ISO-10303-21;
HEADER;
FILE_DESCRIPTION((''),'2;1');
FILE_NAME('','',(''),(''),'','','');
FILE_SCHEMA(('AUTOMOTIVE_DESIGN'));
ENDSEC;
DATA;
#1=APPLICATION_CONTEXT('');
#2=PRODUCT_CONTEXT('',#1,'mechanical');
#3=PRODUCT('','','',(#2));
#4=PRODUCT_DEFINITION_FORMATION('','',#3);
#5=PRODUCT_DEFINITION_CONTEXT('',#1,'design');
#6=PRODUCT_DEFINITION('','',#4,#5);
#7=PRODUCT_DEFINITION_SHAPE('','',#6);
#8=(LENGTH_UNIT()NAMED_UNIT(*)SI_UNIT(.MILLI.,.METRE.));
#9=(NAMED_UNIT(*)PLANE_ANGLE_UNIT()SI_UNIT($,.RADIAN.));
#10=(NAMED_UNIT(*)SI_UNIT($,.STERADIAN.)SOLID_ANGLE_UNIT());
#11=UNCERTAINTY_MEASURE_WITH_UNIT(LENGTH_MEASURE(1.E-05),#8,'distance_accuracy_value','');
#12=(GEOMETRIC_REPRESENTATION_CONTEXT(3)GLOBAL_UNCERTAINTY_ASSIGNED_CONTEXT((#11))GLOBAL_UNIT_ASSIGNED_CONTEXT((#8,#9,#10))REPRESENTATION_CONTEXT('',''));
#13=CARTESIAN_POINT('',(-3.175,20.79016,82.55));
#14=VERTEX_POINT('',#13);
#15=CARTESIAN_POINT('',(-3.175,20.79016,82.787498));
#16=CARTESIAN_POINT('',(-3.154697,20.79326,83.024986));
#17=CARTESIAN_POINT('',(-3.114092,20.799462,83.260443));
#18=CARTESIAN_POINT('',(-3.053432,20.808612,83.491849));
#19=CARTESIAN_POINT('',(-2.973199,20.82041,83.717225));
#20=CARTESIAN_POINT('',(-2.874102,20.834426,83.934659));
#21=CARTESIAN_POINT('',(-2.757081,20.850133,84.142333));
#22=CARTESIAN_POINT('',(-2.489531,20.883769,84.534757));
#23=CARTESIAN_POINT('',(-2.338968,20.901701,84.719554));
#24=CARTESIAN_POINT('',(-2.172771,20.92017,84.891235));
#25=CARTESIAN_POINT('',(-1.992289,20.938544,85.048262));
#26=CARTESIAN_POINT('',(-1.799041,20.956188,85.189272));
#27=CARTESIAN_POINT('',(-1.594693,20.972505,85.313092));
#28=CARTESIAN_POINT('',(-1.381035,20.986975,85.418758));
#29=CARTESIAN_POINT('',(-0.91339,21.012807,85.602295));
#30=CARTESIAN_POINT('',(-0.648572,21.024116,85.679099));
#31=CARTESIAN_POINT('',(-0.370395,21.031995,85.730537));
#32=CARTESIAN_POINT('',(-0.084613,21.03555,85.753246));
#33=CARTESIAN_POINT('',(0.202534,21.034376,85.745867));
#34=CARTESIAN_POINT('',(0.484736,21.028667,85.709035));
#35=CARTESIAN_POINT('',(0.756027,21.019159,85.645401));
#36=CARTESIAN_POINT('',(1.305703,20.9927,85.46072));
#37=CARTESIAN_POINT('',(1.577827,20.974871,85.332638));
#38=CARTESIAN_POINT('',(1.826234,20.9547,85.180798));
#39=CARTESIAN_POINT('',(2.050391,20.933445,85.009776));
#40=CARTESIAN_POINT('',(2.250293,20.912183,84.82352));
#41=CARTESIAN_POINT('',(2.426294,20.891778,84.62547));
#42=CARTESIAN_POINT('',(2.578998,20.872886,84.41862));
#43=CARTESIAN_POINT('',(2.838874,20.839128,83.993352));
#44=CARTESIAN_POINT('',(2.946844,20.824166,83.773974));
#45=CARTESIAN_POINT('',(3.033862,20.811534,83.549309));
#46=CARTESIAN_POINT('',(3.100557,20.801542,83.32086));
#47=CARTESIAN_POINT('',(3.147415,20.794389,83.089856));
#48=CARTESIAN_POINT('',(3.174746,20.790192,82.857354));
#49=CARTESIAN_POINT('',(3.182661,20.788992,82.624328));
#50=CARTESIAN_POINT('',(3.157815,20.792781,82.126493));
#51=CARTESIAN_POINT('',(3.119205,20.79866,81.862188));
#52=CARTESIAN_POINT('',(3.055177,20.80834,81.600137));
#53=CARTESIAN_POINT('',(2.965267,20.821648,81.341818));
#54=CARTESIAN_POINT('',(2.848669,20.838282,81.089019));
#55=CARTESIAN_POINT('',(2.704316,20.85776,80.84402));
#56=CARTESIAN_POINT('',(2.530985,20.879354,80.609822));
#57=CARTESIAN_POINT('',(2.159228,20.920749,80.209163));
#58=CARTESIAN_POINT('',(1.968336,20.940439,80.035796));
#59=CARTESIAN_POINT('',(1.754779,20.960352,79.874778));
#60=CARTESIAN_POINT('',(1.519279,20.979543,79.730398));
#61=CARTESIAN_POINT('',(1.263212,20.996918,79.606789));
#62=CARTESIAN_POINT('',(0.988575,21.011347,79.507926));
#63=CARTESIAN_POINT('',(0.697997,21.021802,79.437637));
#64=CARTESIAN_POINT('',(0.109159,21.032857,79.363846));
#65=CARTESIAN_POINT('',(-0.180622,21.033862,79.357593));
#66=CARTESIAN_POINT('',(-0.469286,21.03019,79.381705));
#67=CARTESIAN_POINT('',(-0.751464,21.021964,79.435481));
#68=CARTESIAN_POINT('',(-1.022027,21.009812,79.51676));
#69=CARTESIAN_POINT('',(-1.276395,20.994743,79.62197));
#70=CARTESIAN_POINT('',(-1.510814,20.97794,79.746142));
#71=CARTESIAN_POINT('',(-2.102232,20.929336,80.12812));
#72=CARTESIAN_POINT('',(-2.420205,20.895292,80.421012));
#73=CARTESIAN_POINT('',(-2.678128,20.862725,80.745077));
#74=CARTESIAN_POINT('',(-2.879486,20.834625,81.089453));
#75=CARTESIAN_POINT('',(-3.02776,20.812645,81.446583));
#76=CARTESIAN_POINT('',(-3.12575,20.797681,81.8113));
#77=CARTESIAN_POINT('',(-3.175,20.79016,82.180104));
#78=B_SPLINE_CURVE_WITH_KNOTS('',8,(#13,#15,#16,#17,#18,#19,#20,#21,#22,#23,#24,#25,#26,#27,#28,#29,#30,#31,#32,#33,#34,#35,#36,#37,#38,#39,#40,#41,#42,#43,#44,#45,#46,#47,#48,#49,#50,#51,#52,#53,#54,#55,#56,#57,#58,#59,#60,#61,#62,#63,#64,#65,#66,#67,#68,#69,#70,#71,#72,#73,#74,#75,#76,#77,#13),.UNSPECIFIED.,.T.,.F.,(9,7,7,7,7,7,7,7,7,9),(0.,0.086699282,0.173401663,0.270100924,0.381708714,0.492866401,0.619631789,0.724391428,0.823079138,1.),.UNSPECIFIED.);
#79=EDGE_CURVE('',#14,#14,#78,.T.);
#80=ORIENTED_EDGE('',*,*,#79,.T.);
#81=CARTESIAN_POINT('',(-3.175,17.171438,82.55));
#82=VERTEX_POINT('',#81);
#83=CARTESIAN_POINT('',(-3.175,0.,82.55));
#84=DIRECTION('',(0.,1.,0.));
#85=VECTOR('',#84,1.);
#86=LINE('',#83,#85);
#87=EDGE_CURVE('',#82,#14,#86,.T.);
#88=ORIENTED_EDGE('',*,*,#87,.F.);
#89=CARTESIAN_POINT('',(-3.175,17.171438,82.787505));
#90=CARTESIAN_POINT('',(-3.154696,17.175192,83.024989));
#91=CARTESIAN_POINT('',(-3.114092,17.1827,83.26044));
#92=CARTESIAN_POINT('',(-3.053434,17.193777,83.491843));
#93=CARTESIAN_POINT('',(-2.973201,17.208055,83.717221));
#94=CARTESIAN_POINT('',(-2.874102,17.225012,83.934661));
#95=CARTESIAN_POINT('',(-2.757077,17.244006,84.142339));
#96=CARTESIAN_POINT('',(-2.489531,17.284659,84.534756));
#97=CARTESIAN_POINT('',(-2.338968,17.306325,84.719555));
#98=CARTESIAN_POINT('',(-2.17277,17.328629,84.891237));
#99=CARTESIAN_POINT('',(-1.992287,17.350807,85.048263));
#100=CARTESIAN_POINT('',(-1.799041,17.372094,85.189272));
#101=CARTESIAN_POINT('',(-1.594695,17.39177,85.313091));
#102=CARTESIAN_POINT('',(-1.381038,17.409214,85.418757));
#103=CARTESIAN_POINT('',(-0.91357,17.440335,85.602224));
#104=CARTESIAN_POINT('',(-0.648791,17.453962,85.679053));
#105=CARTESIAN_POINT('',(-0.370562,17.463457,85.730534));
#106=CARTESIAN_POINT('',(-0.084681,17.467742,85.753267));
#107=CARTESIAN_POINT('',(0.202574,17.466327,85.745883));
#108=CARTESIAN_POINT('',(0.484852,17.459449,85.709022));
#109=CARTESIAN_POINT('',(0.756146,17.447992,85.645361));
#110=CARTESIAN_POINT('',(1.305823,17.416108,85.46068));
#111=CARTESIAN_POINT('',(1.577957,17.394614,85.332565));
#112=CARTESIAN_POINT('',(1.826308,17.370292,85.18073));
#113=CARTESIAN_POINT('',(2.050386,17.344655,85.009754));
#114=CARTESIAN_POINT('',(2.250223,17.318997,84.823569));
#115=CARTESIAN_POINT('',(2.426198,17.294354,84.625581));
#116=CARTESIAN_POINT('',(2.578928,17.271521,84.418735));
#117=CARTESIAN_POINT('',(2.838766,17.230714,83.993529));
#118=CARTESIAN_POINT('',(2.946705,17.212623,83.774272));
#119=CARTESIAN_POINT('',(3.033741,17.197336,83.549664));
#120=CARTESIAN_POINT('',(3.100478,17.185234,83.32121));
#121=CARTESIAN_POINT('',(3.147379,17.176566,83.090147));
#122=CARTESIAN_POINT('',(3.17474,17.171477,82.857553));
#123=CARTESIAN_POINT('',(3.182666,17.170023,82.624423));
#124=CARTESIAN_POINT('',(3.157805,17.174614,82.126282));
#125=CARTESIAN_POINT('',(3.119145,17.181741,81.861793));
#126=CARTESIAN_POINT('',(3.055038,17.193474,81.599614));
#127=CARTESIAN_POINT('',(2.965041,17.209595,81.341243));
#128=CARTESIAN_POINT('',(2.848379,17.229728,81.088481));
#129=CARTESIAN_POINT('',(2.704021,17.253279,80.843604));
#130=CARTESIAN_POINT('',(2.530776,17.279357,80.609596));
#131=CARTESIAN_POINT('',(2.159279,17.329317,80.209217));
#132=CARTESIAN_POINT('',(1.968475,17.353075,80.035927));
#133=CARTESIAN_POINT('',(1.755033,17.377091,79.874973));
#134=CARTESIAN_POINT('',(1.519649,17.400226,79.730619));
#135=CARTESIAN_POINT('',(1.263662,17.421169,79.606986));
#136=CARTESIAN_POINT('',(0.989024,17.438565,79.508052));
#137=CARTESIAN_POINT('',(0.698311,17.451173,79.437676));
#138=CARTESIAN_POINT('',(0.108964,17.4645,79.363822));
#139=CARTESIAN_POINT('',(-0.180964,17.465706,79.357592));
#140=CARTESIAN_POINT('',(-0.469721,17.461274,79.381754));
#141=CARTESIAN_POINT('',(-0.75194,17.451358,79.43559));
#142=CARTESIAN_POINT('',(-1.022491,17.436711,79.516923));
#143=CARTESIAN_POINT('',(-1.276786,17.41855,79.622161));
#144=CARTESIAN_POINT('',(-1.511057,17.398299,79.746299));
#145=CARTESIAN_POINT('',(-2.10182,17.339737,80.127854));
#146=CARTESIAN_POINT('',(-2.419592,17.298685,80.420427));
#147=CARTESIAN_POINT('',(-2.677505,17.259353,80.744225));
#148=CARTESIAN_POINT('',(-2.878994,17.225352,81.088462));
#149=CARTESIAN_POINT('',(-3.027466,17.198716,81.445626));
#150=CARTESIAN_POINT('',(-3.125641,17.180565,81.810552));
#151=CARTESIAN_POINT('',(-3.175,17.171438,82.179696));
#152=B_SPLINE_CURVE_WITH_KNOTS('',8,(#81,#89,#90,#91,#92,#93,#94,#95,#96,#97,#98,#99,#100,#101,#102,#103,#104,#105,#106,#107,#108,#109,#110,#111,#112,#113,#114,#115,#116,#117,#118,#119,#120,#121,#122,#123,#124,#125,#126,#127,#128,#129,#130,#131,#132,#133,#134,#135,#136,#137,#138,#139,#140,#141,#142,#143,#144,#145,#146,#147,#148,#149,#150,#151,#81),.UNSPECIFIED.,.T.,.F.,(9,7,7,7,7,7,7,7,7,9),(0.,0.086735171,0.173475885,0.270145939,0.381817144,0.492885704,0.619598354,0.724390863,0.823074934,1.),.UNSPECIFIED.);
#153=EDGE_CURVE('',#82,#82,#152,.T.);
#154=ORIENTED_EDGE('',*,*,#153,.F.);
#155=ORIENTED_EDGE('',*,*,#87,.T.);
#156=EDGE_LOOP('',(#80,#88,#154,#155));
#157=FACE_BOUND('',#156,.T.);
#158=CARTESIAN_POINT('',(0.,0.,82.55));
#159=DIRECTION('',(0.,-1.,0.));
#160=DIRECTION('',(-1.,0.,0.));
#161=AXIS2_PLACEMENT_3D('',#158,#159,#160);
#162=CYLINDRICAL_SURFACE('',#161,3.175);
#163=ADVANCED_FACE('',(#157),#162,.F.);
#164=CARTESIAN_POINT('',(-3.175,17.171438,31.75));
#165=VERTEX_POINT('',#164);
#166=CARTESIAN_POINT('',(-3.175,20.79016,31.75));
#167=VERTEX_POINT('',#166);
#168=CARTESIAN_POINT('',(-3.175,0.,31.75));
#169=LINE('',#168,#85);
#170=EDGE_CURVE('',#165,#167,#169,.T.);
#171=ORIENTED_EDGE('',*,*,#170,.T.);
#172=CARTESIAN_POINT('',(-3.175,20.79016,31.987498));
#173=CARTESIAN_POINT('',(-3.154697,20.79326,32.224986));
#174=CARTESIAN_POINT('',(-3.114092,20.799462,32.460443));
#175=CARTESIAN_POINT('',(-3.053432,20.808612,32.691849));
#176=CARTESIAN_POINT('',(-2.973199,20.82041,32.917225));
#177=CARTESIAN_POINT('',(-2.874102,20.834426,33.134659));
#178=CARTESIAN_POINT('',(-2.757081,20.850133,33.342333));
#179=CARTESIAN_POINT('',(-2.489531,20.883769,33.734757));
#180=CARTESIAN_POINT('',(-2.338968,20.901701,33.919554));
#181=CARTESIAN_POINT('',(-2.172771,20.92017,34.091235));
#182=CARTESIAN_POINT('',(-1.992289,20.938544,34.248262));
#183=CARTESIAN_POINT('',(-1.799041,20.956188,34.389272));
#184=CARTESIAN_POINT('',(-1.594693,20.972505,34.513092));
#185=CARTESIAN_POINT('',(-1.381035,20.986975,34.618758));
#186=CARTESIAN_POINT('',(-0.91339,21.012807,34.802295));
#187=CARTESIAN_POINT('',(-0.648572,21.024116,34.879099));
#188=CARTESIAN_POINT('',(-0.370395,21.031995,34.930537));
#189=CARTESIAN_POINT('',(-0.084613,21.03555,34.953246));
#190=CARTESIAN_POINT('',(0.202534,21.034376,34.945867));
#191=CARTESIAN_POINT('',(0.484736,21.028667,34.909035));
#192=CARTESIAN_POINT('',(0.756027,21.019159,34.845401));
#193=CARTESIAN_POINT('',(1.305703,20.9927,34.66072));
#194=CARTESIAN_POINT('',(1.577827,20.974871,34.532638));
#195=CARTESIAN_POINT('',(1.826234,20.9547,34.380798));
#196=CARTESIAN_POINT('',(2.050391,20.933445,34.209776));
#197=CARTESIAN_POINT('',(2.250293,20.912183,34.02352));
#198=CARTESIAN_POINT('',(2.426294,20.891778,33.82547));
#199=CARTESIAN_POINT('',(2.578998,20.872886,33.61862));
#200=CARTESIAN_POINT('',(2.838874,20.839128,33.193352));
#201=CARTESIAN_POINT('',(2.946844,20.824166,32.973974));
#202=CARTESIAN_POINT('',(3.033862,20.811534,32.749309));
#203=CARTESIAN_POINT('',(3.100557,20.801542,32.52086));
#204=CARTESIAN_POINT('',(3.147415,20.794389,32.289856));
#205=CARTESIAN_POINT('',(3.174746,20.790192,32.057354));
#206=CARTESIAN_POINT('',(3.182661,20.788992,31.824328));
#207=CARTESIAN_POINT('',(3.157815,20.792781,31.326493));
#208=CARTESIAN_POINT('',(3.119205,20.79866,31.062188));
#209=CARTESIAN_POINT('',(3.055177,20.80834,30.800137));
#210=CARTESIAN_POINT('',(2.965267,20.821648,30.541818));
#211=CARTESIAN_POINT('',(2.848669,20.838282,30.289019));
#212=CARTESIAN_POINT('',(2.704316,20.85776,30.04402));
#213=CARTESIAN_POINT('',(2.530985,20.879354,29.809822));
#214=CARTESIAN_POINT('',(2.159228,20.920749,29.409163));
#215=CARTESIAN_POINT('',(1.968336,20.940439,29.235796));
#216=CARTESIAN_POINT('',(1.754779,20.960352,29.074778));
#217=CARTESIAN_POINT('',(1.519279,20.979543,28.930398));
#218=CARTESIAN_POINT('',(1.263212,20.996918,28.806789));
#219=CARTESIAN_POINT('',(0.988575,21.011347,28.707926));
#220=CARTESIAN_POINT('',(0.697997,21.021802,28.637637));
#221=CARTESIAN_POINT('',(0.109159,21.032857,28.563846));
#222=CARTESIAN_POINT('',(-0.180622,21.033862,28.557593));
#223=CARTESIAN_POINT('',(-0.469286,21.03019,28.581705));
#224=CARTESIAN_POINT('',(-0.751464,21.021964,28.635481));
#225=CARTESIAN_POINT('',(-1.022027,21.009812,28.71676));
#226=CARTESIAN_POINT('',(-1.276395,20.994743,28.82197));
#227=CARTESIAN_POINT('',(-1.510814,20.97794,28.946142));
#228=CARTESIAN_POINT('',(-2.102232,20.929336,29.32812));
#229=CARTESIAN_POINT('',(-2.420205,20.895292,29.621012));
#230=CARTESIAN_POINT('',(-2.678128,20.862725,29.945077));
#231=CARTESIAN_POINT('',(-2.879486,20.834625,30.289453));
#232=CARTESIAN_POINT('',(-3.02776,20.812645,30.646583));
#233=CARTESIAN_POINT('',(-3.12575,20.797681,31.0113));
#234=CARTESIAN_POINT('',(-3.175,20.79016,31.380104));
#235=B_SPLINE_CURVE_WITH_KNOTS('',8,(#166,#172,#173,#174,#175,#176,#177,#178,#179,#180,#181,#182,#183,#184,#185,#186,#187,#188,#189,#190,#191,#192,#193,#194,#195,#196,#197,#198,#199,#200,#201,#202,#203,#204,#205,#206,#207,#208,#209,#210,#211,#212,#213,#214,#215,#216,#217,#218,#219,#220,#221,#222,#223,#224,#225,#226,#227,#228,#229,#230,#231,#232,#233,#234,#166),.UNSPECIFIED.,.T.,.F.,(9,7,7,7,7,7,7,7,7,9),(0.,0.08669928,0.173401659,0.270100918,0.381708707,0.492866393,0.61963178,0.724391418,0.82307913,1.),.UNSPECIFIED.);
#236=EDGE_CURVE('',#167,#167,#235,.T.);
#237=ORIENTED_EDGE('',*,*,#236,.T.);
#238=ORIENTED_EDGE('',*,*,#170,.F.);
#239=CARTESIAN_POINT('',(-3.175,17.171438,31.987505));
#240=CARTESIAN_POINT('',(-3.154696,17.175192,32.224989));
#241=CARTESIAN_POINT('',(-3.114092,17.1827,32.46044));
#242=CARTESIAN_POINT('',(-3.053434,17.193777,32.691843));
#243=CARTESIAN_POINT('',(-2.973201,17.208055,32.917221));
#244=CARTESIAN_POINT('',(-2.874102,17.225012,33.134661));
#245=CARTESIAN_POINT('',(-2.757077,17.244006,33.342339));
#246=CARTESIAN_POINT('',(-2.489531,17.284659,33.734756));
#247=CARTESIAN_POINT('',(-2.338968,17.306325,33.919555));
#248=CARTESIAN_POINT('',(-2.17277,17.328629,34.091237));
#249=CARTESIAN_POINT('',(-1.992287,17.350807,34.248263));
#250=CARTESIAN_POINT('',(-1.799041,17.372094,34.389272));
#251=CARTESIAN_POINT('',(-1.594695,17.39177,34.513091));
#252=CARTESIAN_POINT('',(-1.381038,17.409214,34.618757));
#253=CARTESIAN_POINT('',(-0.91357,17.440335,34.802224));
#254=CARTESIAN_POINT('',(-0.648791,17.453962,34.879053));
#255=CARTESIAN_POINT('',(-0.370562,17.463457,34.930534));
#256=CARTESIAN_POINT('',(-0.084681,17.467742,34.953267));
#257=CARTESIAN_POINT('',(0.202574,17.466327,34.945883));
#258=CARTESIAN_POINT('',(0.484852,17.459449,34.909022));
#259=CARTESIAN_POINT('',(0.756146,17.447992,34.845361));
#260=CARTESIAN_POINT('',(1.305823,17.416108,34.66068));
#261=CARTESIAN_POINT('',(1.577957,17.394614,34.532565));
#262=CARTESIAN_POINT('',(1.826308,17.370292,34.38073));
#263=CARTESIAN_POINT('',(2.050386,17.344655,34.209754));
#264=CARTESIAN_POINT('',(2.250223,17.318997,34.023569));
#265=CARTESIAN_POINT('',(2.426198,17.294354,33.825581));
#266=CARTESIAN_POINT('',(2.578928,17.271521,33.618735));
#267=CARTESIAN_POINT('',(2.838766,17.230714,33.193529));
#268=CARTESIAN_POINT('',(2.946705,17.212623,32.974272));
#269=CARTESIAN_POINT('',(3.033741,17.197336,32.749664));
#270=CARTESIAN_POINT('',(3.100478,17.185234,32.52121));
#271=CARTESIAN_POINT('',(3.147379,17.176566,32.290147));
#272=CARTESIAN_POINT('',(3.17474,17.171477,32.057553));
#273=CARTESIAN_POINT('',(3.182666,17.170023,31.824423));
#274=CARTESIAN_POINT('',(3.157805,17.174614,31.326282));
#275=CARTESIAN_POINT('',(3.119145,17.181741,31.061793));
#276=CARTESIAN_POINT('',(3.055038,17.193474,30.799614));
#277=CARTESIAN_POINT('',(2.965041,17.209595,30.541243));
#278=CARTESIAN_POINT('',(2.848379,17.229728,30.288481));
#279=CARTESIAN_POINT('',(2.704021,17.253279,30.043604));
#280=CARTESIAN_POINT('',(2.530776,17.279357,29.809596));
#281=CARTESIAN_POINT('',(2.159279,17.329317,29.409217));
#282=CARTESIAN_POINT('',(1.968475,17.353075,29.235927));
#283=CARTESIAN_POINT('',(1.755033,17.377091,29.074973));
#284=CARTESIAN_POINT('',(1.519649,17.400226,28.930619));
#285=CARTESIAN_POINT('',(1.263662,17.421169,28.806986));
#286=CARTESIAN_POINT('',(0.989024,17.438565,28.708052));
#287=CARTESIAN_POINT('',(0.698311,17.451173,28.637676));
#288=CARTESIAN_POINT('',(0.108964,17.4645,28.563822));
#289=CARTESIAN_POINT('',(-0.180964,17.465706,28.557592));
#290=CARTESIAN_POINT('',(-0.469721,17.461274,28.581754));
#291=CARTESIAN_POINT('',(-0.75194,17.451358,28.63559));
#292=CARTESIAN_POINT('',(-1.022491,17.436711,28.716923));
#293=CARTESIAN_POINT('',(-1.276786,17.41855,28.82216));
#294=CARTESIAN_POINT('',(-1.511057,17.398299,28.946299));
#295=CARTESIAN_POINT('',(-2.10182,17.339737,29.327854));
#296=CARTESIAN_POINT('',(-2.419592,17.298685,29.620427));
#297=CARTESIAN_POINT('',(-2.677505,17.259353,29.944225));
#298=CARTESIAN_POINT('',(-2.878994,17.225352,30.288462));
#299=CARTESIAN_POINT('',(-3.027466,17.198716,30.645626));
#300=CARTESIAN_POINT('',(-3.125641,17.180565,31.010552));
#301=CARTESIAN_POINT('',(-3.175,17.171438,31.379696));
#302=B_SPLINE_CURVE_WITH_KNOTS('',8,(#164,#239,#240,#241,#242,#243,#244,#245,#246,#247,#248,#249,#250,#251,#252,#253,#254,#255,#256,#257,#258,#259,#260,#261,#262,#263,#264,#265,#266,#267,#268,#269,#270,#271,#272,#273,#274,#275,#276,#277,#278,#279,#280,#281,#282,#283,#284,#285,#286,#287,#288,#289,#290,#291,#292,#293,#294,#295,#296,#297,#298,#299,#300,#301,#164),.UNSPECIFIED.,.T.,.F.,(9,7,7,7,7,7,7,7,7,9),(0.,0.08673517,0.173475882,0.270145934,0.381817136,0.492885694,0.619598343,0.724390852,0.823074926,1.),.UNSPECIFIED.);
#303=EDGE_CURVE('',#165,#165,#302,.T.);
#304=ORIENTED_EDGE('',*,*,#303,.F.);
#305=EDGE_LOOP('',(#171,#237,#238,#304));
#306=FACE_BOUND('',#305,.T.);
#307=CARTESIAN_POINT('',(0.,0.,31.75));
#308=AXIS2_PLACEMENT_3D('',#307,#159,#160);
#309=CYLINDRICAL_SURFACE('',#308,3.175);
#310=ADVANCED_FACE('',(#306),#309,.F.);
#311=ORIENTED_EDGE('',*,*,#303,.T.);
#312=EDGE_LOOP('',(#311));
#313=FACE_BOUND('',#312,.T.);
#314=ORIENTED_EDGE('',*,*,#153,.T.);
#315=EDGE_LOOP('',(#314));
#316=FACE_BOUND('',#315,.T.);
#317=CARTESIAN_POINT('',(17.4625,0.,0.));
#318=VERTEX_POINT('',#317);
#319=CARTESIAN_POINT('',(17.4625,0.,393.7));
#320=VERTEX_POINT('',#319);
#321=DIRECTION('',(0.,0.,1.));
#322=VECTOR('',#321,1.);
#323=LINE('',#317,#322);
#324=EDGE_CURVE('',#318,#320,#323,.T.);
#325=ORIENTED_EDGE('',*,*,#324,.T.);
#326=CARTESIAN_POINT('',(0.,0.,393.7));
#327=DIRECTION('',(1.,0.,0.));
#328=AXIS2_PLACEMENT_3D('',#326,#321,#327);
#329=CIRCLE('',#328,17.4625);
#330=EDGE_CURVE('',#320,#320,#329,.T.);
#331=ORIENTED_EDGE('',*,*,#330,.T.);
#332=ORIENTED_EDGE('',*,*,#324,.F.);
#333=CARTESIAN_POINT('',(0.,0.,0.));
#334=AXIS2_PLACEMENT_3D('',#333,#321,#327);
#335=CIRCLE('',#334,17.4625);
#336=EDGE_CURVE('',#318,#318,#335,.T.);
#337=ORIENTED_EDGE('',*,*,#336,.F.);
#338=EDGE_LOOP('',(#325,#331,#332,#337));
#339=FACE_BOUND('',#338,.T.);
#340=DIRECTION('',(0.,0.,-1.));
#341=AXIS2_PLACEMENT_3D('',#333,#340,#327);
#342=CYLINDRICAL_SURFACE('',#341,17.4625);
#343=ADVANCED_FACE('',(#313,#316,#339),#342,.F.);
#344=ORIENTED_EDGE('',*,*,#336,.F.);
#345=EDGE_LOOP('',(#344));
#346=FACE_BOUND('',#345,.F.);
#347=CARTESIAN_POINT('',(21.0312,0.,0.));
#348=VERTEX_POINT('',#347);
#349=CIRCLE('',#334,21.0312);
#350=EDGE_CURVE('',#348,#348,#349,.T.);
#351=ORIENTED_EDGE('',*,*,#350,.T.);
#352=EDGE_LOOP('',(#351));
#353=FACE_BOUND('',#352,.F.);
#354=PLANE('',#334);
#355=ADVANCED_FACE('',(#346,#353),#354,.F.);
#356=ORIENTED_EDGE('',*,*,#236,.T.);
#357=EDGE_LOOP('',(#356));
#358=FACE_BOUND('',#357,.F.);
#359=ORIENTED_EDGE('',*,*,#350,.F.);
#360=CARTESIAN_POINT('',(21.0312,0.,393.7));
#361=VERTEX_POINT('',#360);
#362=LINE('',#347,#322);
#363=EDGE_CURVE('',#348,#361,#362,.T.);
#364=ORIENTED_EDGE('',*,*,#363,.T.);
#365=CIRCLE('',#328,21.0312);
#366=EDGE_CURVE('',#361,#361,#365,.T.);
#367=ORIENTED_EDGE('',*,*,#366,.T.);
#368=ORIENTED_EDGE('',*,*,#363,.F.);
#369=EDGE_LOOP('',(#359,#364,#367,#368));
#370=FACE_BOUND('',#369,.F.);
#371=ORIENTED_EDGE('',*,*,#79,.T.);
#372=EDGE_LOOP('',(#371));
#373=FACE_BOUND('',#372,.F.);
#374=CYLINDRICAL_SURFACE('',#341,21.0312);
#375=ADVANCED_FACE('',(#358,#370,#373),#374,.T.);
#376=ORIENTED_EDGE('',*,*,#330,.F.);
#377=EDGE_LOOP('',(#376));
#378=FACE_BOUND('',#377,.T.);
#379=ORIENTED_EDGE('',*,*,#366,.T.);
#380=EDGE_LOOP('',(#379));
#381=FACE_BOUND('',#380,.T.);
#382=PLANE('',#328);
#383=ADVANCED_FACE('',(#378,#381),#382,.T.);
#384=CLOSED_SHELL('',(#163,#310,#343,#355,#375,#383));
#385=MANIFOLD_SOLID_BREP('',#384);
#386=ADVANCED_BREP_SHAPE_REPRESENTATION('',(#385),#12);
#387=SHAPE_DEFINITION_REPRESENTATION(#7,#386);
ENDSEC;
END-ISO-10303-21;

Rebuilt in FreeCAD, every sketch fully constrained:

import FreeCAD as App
import Part
import Sketcher
from FreeCAD import Vector
Q = App.Units.Quantity

doc = App.newDocument("Part")
body = doc.addObject("PartDesign::Body", "Body")

# Sketch on XY plane
sketch1 = body.newObject("Sketcher::SketchObject", "Sketch")
sketch1.AttachmentSupport = (doc.getObject("XY_Plane"), [""])
sketch1.MapMode = "FlatFace"
sketch1.addGeometry(Part.Circle(Vector(0, 0, 0), Vector(0, 0, 1), 21), False)
sketch1.addGeometry(Part.Circle(Vector(0, 0, 0), Vector(0, 0, 1), 17), False)
sketch1.addConstraint(Sketcher.Constraint("Coincident", 0, 3, -1, 1))
sketch1.addConstraint(Sketcher.Constraint("Coincident", 1, 3, -1, 1))
sketch1.addConstraint(Sketcher.Constraint("Diameter", 0, Q("1.656 in")))
sketch1.addConstraint(Sketcher.Constraint("Diameter", 1, Q("1.375 in")))
pad1 = body.newObject("PartDesign::Pad", "Pad")
pad1.Profile = sketch1
pad1.Length = Q("15.5 in")

# Sketch on XZ plane
sketch2 = body.newObject("Sketcher::SketchObject", "Sketch001")
sketch2.AttachmentSupport = (doc.getObject("XZ_Plane"), [""])
sketch2.MapMode = "FlatFace"
sketch2.addGeometry(Part.Circle(Vector(0, 31.8, 0), Vector(0, 0, 1), 3.2), False)
sketch2.addGeometry(Part.Circle(Vector(0, 82.5, 0), Vector(0, 0, 1), 3.2), False)
sketch2.addConstraint(Sketcher.Constraint("Equal", 0, 1))
sketch2.addConstraint(Sketcher.Constraint("PointOnObject", 0, 3, -2))
sketch2.addConstraint(Sketcher.Constraint("PointOnObject", 1, 3, -2))
sketch2.addConstraint(Sketcher.Constraint("Diameter", 0, Q("0.25 in")))
sketch2.addConstraint(Sketcher.Constraint("DistanceY", 0, 3, 1, 3, Q("2 in")))
sketch2.addConstraint(Sketcher.Constraint("DistanceY", -1, 1, 0, 3, Q("1.25 in")))
pocket1 = body.newObject("PartDesign::Pocket", "Pocket")
pocket1.Profile = sketch2
pocket1.Type = "ThroughAll"

doc.recompute()
